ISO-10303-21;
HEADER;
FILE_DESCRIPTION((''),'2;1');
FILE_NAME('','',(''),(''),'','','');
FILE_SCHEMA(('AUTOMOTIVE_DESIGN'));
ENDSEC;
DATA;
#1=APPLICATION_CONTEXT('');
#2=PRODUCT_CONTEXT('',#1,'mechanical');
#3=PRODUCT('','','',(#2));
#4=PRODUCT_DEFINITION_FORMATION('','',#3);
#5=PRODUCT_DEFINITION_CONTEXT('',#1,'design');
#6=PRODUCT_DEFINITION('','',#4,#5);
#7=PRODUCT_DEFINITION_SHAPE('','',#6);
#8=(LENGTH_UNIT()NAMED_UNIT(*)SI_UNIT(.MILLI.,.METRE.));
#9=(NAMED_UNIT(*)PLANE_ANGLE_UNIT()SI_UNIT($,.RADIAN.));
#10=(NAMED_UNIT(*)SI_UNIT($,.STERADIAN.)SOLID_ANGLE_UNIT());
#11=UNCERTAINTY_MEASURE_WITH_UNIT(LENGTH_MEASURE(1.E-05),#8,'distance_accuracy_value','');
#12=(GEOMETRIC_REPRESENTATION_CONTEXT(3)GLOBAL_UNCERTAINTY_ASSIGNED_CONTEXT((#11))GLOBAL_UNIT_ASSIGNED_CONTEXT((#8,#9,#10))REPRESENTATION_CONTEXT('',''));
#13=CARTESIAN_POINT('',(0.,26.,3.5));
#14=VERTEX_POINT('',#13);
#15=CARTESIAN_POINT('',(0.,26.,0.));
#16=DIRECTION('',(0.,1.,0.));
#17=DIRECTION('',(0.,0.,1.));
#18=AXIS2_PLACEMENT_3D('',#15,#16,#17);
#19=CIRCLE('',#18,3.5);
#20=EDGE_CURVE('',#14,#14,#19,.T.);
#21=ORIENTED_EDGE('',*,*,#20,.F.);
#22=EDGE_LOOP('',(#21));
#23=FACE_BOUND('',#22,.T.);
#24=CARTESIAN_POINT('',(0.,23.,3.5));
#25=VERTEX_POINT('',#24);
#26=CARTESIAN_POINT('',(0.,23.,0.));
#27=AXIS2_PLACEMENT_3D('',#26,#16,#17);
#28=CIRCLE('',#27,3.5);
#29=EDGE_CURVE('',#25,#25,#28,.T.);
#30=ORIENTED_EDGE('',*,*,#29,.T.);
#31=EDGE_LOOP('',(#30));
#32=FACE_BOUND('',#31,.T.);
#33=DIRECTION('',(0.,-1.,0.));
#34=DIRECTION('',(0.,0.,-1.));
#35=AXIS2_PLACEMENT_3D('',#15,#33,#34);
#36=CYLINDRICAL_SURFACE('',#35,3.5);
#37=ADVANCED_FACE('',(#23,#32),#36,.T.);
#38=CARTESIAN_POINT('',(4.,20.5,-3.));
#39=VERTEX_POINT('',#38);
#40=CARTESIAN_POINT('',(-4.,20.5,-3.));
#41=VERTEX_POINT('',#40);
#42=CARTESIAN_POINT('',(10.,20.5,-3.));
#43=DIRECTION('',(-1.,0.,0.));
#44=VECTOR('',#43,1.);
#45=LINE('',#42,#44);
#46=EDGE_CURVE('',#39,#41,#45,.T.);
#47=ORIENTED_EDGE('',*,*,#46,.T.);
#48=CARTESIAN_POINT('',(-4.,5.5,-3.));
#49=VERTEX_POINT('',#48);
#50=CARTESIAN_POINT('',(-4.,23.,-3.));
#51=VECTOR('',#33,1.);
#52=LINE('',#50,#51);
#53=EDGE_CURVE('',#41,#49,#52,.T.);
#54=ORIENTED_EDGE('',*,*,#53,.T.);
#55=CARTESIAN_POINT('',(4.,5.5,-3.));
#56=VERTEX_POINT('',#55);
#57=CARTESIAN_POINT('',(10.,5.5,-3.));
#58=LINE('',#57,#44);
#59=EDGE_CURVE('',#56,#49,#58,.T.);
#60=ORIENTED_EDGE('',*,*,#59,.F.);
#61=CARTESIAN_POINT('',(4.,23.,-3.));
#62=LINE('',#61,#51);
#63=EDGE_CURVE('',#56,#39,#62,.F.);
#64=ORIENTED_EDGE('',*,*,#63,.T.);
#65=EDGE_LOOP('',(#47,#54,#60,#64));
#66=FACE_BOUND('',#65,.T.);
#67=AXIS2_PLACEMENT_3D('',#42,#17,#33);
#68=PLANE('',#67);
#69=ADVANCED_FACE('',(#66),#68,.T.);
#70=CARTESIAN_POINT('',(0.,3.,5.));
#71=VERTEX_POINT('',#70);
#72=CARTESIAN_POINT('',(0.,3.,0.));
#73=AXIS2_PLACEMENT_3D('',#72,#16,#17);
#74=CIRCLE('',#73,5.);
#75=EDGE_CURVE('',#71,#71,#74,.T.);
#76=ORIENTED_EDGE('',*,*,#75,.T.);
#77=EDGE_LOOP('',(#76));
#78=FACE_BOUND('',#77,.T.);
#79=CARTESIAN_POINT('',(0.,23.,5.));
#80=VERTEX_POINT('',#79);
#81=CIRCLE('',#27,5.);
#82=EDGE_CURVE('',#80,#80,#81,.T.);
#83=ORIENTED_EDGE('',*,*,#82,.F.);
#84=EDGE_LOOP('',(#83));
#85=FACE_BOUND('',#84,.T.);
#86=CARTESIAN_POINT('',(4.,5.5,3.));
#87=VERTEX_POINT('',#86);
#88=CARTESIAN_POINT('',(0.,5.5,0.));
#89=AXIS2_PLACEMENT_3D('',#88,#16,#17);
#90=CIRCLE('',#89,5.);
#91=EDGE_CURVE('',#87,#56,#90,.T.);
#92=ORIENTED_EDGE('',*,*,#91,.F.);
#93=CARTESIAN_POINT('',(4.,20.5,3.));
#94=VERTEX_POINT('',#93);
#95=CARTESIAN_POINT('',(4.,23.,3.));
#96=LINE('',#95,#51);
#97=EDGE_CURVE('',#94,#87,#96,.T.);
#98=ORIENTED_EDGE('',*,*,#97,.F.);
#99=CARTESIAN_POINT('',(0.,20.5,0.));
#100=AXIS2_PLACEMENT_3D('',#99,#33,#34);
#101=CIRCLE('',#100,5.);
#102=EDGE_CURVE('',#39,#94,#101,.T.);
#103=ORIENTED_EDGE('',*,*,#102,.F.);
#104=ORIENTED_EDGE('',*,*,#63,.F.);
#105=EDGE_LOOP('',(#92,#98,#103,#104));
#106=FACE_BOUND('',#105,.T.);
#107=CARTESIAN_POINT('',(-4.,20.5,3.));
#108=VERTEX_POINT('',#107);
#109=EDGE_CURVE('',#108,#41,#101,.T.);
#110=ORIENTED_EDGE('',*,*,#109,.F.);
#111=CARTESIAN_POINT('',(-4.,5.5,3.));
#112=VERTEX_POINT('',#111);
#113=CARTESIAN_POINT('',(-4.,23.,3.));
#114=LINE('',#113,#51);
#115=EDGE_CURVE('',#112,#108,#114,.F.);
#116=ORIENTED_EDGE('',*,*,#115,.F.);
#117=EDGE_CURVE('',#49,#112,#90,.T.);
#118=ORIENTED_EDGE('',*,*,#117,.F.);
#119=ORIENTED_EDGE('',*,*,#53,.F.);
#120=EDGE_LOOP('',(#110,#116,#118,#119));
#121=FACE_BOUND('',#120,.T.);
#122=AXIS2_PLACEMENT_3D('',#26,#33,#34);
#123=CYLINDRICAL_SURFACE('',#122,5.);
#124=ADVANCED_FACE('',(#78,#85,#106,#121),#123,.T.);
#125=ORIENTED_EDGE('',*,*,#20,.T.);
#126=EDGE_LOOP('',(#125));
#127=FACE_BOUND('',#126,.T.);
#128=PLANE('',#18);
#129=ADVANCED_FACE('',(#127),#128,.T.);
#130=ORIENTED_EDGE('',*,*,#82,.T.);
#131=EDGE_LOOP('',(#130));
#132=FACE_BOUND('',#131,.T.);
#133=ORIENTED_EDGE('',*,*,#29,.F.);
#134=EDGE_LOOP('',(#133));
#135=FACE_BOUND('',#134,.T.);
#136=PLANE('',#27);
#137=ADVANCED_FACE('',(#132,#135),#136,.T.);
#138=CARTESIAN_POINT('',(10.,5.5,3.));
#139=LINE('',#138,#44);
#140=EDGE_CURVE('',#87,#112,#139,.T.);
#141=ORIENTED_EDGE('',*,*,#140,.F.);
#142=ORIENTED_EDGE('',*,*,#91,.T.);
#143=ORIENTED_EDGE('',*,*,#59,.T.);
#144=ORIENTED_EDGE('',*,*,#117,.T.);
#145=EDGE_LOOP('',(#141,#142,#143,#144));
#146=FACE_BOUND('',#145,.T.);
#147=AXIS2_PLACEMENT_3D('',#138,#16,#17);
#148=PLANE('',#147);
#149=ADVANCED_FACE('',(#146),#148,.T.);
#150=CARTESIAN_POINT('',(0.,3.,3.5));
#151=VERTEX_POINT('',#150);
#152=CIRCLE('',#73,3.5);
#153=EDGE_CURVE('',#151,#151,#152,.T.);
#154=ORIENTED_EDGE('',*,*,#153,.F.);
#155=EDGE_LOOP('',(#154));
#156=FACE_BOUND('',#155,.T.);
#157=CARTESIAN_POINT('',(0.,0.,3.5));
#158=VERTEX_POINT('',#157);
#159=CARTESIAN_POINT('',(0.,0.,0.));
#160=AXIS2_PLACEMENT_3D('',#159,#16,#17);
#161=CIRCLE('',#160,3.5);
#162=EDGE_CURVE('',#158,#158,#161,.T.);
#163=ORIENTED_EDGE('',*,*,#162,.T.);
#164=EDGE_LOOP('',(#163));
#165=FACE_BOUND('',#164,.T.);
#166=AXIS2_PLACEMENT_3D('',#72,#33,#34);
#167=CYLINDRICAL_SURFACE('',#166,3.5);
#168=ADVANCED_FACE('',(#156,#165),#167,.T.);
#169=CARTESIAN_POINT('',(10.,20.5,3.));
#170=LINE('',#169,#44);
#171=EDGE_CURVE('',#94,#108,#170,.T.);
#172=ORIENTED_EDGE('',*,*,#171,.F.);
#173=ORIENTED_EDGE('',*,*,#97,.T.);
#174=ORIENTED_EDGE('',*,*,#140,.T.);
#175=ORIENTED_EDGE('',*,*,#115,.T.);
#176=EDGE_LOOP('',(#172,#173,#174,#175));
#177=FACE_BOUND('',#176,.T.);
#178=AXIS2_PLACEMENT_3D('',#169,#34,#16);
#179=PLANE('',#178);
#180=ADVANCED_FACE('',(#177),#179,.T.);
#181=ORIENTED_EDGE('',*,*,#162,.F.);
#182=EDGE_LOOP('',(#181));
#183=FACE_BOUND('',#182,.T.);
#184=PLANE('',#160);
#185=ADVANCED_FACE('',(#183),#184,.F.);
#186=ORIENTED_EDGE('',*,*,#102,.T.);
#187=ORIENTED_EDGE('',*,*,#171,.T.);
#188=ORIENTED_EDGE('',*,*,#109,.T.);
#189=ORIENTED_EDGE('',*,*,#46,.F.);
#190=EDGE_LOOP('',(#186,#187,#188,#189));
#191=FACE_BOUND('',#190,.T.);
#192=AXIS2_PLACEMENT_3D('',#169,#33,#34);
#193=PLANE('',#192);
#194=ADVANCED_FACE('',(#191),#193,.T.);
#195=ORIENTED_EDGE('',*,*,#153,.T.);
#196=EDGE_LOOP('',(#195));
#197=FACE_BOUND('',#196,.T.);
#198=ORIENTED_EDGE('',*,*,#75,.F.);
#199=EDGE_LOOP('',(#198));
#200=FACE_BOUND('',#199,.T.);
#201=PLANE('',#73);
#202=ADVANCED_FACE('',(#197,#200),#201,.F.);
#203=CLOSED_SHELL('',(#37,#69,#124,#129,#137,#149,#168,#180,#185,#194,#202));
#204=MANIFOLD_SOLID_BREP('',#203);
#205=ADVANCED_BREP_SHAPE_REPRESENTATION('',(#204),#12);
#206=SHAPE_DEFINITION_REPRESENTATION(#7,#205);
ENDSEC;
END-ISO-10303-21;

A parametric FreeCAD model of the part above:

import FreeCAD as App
import Part
import Sketcher

V = App.Vector


def add_polygon(sketch, points):
    """Adds a closed chain of lines whose ends are joined by coincident constraints."""
    first, n = sketch.GeometryCount, len(points)
    for a, b in zip(points, points[1:] + points[:1]):
        sketch.addGeometry(Part.LineSegment(App.Vector(*a, 0), App.Vector(*b, 0)), False)
    for i in range(n):
        sketch.addConstraint(Sketcher.Constraint("Coincident", first + i, 2, first + (i + 1) % n, 1))

doc = App.newDocument("Part")
body = doc.addObject("PartDesign::Body", "Body")

# Sketch on XZ plane
sketch1 = doc.addObject("Sketcher::SketchObject", "Sketch")
body.addObject(sketch1)
sketch1.AttachmentSupport = (doc.XZ_Plane, [""])
sketch1.MapMode = "FlatFace"
sketch1.addGeometry(Part.Circle(V(0, 0, 0), V(0, 0, 1), 3.5), False)
sketch1.addConstraint([
    Sketcher.Constraint("Coincident", 0, 3, -1, 1),
    Sketcher.Constraint("Diameter", 0, 7.0),
])
pad1 = doc.addObject("PartDesign::Pad", "Pad")
body.addObject(pad1)
pad1.Profile = sketch1
pad1.Length = 3
pad1.Reversed = True

# Sketch on XZ plane
sketch2 = doc.addObject("Sketcher::SketchObject", "Sketch001")
body.addObject(sketch2)
sketch2.AttachmentSupport = (doc.XZ_Plane, [""])
sketch2.MapMode = "FlatFace"
sketch2.AttachmentOffset = App.Placement(V(0, 0, -3), App.Rotation())
sketch2.addGeometry(Part.Circle(V(0, 0, 0), V(0, 0, 1), 5), False)
sketch2.addConstraint([
    Sketcher.Constraint("Coincident", 0, 3, -1, 1),
    Sketcher.Constraint("Diameter", 0, 10.0),
])
pad2 = doc.addObject("PartDesign::Pad", "Pad001")
body.addObject(pad2)
pad2.Profile = sketch2
pad2.Length = 20
pad2.Reversed = True

# Sketch on XZ plane
sketch3 = doc.addObject("Sketcher::SketchObject", "Sketch002")
body.addObject(sketch3)
sketch3.AttachmentSupport = (doc.XZ_Plane, [""])
sketch3.MapMode = "FlatFace"
sketch3.AttachmentOffset = App.Placement(V(0, 0, -23), App.Rotation())
sketch3.addGeometry(Part.Circle(V(0, 0, 0), V(0, 0, 1), 3.5), False)
sketch3.addConstraint([
    Sketcher.Constraint("Coincident", 0, 3, -1, 1),
    Sketcher.Constraint("Diameter", 0, 7.0),
])
pad3 = doc.addObject("PartDesign::Pad", "Pad002")
body.addObject(pad3)
pad3.Profile = sketch3
pad3.Length = 3
pad3.Reversed = True

# Sketch on YZ plane
sketch4 = doc.addObject("Sketcher::SketchObject", "Sketch003")
body.addObject(sketch4)
sketch4.AttachmentSupport = (doc.YZ_Plane, [""])
sketch4.MapMode = "FlatFace"
add_polygon(sketch4, [(20.5, 3), (5.5, 3), (5.5, -3), (20.5, -3)])  # lines 0-3
sketch4.addConstraint([
    Sketcher.Constraint("Horizontal", 0),
    Sketcher.Constraint("Vertical", 1),
    Sketcher.Constraint("Horizontal", 2),
    Sketcher.Constraint("Vertical", 3),
    Sketcher.Constraint("DistanceX", 0, 2, 0, 1, 15.0),
    Sketcher.Constraint("DistanceY", 1, 2, 1, 1, 6.0),
    Sketcher.Constraint("DistanceY", -1, 1, 0, 2, 3.0),
    Sketcher.Constraint("DistanceX", -1, 1, 0, 2, 5.5),
])
pocket1 = doc.addObject("PartDesign::Pocket", "Pocket")
body.addObject(pocket1)
pocket1.Profile = sketch4
pocket1.Type = "ThroughAll"
pocket1.Midplane = True

doc.recompute()
